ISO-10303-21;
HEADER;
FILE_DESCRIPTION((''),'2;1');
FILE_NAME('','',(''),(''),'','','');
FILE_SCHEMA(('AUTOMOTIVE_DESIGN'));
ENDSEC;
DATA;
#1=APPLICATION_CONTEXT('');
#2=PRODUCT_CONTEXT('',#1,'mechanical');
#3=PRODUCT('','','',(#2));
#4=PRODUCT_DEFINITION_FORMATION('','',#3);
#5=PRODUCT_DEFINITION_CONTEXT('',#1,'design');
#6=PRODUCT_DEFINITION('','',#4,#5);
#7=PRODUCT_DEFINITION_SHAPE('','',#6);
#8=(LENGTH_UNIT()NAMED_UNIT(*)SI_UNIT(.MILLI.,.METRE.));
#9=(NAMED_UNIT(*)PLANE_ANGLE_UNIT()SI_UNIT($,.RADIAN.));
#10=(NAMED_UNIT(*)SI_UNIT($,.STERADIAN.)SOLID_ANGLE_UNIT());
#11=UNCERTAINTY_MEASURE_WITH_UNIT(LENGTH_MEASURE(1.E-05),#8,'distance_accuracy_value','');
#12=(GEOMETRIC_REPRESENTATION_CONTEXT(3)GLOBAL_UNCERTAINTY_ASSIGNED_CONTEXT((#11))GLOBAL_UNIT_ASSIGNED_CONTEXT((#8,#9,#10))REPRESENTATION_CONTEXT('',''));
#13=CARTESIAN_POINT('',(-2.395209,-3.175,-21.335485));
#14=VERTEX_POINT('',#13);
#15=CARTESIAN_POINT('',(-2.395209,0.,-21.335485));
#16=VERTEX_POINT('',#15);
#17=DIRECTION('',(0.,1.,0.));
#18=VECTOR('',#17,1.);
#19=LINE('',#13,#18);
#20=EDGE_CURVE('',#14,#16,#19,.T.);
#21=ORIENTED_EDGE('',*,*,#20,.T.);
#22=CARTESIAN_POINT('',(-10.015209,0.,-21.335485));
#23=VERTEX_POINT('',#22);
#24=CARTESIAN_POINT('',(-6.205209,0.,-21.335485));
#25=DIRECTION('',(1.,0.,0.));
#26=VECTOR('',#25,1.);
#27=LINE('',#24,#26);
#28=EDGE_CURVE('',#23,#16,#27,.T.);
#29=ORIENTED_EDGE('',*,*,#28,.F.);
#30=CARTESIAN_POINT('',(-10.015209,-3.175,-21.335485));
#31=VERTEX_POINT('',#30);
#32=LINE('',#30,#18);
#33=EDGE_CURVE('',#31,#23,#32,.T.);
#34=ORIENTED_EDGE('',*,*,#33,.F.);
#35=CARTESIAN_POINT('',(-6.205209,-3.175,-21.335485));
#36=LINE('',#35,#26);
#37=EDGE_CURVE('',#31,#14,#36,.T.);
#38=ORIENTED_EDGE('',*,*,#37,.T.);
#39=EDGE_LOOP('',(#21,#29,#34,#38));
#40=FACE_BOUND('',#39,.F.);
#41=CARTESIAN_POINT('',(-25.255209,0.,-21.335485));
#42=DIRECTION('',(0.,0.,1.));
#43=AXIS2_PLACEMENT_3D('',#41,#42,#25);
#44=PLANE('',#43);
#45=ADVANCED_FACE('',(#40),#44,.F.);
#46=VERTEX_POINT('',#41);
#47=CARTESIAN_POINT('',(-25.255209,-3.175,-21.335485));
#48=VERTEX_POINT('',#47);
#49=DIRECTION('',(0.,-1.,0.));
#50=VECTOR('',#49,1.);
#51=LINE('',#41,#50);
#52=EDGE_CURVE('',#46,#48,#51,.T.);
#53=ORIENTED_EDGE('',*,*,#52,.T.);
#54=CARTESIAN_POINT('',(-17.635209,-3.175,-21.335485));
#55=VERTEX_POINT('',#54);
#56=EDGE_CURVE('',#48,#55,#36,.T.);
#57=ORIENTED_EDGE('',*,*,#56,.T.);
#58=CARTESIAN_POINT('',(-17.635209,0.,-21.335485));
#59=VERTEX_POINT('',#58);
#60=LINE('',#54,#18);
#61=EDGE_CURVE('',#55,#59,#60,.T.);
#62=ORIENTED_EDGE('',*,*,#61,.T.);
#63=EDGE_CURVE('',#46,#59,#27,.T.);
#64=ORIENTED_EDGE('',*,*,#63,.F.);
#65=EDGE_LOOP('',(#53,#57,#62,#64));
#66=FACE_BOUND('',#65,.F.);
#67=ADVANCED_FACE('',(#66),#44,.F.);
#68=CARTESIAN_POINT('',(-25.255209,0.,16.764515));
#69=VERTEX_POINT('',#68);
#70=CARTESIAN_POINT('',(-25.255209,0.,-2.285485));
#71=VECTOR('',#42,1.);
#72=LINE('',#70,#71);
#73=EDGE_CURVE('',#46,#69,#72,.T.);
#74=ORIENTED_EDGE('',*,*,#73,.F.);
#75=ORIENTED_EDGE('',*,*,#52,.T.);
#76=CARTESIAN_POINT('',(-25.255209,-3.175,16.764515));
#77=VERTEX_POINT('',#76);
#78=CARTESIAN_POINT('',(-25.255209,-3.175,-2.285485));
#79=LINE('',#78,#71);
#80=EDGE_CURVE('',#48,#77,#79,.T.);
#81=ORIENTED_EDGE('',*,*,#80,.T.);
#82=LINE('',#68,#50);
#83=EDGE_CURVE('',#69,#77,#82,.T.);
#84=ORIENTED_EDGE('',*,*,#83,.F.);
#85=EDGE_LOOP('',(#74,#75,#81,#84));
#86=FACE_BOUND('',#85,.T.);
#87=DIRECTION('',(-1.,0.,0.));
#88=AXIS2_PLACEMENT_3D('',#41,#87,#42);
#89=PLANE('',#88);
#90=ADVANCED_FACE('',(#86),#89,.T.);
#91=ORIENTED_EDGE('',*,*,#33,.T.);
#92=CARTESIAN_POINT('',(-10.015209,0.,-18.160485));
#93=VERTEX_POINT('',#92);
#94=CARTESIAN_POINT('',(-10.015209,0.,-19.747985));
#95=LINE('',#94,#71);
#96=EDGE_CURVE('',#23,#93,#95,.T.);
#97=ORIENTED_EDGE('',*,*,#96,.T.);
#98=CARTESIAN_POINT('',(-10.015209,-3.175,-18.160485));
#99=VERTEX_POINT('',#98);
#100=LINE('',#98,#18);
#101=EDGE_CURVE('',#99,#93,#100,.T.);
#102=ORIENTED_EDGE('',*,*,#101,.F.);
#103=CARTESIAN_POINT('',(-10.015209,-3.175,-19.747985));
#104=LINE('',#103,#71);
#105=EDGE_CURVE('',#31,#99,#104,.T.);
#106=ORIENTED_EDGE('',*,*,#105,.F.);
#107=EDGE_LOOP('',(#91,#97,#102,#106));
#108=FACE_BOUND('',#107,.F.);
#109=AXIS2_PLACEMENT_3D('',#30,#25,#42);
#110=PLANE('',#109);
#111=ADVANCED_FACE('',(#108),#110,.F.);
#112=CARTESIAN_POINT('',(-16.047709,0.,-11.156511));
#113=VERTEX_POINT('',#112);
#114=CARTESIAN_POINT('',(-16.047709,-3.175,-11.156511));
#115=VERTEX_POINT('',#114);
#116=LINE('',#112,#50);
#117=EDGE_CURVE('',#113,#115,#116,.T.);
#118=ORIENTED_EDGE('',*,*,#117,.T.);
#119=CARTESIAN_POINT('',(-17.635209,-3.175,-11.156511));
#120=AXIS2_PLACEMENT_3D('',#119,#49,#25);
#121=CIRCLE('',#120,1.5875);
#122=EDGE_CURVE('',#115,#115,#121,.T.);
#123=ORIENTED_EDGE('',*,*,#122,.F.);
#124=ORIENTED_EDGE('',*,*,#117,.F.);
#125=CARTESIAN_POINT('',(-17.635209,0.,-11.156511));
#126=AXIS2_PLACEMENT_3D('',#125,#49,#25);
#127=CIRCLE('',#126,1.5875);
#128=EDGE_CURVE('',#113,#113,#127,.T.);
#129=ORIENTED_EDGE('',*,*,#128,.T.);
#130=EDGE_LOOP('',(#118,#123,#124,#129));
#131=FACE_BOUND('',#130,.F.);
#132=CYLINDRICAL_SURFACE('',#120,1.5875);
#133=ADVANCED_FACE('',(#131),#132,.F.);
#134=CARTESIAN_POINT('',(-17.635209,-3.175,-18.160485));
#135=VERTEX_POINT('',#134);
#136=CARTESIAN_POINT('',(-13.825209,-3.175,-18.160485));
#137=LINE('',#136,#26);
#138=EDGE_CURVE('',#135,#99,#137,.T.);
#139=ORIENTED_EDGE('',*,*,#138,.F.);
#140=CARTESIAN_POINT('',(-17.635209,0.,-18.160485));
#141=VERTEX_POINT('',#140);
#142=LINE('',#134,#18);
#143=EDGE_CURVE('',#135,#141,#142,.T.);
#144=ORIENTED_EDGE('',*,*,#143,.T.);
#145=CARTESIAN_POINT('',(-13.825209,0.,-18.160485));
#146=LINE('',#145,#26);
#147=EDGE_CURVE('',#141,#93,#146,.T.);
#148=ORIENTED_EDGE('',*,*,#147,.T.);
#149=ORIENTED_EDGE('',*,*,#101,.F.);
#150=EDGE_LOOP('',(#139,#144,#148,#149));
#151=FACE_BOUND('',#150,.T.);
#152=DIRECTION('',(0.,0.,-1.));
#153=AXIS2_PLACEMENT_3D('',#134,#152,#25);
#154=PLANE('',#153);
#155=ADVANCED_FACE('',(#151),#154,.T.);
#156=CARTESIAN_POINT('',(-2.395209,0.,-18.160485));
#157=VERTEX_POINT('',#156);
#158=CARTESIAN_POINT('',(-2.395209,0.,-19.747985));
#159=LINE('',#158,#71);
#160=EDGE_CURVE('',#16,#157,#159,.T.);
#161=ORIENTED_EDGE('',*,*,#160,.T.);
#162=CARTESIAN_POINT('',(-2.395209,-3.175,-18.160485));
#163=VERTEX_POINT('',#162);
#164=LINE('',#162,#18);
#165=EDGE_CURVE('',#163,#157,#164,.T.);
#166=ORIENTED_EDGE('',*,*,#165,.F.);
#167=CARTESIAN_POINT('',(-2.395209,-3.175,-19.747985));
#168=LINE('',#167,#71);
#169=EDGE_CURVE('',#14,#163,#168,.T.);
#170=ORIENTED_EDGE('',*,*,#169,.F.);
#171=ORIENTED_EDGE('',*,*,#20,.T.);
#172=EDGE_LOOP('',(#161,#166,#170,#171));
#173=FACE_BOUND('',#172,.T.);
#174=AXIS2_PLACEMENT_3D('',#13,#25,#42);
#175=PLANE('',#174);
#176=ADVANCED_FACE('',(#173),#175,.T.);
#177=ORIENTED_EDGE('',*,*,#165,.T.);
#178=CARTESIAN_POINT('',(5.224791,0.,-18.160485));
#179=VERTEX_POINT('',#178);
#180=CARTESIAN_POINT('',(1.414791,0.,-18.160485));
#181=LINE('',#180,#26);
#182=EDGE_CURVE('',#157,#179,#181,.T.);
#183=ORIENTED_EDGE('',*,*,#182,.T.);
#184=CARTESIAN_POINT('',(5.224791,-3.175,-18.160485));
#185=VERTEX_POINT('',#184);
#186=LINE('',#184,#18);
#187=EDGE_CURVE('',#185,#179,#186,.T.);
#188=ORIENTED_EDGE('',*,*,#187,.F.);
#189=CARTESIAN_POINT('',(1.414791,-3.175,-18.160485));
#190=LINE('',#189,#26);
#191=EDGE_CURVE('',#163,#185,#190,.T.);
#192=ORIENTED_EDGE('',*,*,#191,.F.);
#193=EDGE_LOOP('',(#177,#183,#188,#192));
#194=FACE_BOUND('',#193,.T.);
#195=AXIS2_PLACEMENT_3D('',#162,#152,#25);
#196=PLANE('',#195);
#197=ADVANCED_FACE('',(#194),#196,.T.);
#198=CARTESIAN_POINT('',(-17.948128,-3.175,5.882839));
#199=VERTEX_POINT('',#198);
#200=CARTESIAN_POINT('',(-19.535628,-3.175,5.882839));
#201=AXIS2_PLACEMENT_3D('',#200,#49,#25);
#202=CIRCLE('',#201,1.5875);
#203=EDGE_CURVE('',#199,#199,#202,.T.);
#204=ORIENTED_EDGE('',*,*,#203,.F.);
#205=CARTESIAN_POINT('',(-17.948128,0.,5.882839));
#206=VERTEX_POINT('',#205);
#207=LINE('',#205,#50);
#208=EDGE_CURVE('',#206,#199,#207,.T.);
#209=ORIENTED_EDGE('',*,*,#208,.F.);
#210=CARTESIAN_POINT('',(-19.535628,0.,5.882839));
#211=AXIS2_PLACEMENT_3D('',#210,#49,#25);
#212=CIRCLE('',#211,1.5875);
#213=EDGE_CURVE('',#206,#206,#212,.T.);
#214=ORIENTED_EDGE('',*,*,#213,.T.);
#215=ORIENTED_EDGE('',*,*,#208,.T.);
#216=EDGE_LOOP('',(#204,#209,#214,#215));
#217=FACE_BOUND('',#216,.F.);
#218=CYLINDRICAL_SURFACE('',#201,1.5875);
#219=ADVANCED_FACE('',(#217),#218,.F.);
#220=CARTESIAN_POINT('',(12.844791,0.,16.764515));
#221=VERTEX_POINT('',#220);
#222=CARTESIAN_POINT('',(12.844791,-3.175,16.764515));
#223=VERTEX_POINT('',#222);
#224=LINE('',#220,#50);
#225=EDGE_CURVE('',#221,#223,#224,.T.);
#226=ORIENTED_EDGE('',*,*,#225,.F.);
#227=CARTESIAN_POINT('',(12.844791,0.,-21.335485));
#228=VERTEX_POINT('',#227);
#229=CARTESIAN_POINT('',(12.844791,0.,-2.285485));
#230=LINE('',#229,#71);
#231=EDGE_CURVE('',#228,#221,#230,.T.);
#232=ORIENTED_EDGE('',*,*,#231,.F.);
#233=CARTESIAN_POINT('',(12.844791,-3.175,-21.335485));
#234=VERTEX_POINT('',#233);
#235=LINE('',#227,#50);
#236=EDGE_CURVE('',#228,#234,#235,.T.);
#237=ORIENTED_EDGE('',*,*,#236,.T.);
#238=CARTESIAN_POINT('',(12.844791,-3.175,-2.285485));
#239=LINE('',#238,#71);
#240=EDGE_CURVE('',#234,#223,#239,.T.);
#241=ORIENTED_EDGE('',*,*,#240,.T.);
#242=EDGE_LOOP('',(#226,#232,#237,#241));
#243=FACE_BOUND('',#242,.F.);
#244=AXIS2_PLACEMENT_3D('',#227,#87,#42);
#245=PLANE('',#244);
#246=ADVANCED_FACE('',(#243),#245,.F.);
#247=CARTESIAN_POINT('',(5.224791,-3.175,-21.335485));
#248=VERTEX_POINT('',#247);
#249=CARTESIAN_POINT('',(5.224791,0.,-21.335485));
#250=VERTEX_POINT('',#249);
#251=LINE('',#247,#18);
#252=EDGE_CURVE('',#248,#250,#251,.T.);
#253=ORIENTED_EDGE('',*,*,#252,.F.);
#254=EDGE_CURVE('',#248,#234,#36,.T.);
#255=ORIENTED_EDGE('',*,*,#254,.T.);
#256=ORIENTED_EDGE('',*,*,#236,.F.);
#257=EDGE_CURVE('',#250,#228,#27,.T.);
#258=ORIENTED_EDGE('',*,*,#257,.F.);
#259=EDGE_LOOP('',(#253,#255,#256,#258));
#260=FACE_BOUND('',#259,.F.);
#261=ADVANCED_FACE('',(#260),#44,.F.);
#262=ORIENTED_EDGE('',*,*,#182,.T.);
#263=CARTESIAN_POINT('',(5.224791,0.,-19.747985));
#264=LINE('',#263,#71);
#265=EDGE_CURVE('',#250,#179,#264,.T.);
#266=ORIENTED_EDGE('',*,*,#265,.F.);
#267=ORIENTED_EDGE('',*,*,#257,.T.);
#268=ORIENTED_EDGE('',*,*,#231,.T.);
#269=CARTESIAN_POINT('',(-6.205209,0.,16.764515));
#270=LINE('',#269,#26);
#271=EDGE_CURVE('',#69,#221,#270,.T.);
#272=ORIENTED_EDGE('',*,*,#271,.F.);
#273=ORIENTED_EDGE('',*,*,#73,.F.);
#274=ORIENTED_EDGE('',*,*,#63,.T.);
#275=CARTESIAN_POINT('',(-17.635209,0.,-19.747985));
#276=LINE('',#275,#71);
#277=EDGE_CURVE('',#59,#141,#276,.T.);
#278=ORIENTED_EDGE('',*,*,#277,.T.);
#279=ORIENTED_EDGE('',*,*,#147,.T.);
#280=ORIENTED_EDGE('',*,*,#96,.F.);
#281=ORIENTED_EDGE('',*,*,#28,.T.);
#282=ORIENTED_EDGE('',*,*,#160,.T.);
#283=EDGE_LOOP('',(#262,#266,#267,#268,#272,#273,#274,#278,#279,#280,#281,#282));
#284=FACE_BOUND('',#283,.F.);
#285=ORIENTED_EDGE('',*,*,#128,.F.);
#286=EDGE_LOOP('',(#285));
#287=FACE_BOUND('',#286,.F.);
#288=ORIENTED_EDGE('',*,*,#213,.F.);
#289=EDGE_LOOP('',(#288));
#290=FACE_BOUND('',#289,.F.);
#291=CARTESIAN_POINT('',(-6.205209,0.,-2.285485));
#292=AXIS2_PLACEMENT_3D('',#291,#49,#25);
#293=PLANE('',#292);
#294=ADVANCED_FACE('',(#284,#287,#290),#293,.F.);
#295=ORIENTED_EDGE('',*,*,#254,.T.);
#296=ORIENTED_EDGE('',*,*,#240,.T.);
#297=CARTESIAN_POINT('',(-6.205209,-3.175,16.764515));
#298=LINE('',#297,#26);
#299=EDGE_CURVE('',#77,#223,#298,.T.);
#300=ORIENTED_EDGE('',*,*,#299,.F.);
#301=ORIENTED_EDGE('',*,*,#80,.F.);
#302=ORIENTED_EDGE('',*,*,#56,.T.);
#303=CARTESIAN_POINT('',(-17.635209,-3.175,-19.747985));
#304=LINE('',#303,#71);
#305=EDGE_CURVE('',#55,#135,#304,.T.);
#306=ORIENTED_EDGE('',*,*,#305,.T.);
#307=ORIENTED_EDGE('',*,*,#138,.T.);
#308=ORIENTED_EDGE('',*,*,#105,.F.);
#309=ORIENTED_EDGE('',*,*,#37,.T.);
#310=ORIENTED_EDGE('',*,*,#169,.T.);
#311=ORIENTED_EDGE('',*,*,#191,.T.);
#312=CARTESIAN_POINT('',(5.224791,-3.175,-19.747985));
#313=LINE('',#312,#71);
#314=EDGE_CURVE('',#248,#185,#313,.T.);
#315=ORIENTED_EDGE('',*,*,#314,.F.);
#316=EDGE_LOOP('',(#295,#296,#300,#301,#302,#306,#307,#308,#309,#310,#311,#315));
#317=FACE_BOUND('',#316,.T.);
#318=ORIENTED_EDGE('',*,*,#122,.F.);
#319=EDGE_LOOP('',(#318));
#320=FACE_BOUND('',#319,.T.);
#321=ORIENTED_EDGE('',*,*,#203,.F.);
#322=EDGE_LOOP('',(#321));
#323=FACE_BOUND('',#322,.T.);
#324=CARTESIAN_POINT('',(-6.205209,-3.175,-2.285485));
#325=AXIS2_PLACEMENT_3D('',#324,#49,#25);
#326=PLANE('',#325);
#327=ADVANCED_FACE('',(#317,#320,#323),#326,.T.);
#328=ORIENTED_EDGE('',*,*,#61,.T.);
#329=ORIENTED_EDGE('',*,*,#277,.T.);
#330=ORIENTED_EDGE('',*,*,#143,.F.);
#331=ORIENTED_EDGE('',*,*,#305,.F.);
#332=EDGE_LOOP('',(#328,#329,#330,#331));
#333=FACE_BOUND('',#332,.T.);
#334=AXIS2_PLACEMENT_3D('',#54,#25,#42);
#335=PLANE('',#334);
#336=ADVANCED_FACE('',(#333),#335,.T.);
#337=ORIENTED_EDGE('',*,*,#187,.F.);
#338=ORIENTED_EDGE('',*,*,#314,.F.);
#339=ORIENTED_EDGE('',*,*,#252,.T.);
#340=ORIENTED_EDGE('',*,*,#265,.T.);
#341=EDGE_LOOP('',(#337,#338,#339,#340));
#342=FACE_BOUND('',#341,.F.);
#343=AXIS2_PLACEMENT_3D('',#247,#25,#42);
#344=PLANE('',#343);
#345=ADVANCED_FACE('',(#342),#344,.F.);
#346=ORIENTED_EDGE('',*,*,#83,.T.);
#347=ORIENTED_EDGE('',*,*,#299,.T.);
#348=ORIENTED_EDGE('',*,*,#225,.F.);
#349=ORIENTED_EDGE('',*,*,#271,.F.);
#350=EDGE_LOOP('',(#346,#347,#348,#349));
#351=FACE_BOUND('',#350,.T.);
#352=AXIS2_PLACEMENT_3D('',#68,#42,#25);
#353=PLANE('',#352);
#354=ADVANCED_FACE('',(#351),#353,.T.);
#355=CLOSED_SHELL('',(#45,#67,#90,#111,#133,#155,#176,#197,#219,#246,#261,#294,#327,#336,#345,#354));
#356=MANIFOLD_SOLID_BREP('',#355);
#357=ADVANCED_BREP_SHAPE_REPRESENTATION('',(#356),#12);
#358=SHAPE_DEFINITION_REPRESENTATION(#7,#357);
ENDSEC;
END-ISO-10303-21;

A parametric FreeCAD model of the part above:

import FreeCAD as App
import Part
import Sketcher
from FreeCAD import Vector
Q = App.Units.Quantity


def add_polygon(sketch, points):
    """Adds a closed chain of lines whose ends are joined by coincident constraints."""
    first, n = sketch.GeometryCount, len(points)
    for a, b in zip(points, points[1:] + points[:1]):
        sketch.addGeometry(Part.LineSegment(App.Vector(*a, 0), App.Vector(*b, 0)), False)
    for i in range(n):
        sketch.addConstraint(Sketcher.Constraint("Coincident", first + i, 2, first + (i + 1) % n, 1))

doc = App.newDocument("Part")
body = doc.addObject("PartDesign::Body", "Body")

# Sketch on XZ plane
sketch1 = doc.addObject("Sketcher::SketchObject", "Sketch")
body.addObject(sketch1)
sketch1.AttachmentSupport = (doc.XZ_Plane, [""])
sketch1.MapMode = "FlatFace"
add_polygon(sketch1, [(-25, 17), (-25, -21), (13, -21), (13, 17)])  # lines 0-3
sketch1.addConstraint(Sketcher.Constraint("Vertical", 0))
sketch1.addConstraint(Sketcher.Constraint("Horizontal", 1))
sketch1.addConstraint(Sketcher.Constraint("Vertical", 2))
sketch1.addConstraint(Sketcher.Constraint("Horizontal", 3))
sketch1.addConstraint(Sketcher.Constraint("Equal", 3, 0))
sketch1.addConstraint(Sketcher.Constraint("DistanceX", 1, 1, 1, 2, Q("1.5 in")))
sketch1.addConstraint(Sketcher.Constraint("DistanceX", 0, 2, -1, 1, Q("25.255209 mm")))
sketch1.addConstraint(Sketcher.Constraint("DistanceY", 0, 2, -1, 1, Q("21.335485 mm")))
pad1 = doc.addObject("PartDesign::Pad", "Pad")
body.addObject(pad1)
pad1.Profile = sketch1
pad1.Length = Q("0.125 in")

# Sketch on XZ plane
sketch2 = doc.addObject("Sketcher::SketchObject", "Sketch001")
body.addObject(sketch2)
sketch2.AttachmentSupport = (doc.XZ_Plane, [""])
sketch2.MapMode = "FlatFace"
sketch2.AttachmentOffset = App.Placement(Vector(0, 0, 0.125 * 25.4), App.Rotation())
add_polygon(sketch2, [(-17.6, -18.2), (-17.6, -21.3), (-10, -21.3), (-10, -18.2)])  # lines 0-3
add_polygon(sketch2, [(-2.4, -18.2), (-2.4, -21.3), (5.2, -21.3), (5.2, -18.2)])  # lines 4-7
sketch2.addGeometry(Part.Circle(Vector(-19.5, 5.9, 0), Vector(0, 0, 1), 1.6), False)  # 8
sketch2.addGeometry(Part.Circle(Vector(-17.6, -11.2, 0), Vector(0, 0, 1), 1.6), False)  # 9
sketch2.addConstraint(Sketcher.Constraint("Vertical", 0))
sketch2.addConstraint(Sketcher.Constraint("Horizontal", 1))
sketch2.addConstraint(Sketcher.Constraint("Vertical", 2))
sketch2.addConstraint(Sketcher.Constraint("Horizontal", 3))
sketch2.addConstraint(Sketcher.Constraint("Vertical", 4))
sketch2.addConstraint(Sketcher.Constraint("Horizontal", 5))
sketch2.addConstraint(Sketcher.Constraint("Vertical", 6))
sketch2.addConstraint(Sketcher.Constraint("Horizontal", 7))
sketch2.addConstraint(Sketcher.Constraint("Equal", 8, 9))
sketch2.addConstraint(Sketcher.Constraint("Horizontal", 1, 2, 4, 2))
sketch2.addConstraint(Sketcher.Constraint("Horizontal", 3, 2, 6, 2))
sketch2.addConstraint(Sketcher.Constraint("Vertical", 9, 3, 0, 2))
sketch2.addConstraint(Sketcher.Constraint("Equal", 3, 5))
sketch2.addConstraint(Sketcher.Constraint("Diameter", 8, Q("0.125 in")))
sketch2.addConstraint(Sketcher.Constraint("DistanceX", 1, 1, 1, 2, Q("0.3 in")))
sketch2.addConstraint(Sketcher.Constraint("DistanceX", 1, 2, 4, 2, Q("0.3 in")))
sketch2.addConstraint(Sketcher.Constraint("DistanceY", 0, 2, 0, 1, Q("0.125 in")))
sketch2.addConstraint(Sketcher.Constraint("DistanceY", -1, 1, 8, 3, Q("5.882839 mm")))
sketch2.addConstraint(Sketcher.Constraint("DistanceX", 9, 3, -1, 1, Q("17.635209 mm")))
sketch2.addConstraint(Sketcher.Constraint("DistanceY", 9, 3, -1, 1, Q("11.156511 mm")))
sketch2.addConstraint(Sketcher.Constraint("DistanceX", 8, 3, 9, 3, Q("1.900419 mm")))
sketch2.addConstraint(Sketcher.Constraint("DistanceY", 0, 2, -1, 1, Q("21.335485 mm")))
pocket1 = doc.addObject("PartDesign::Pocket", "Pocket")
body.addObject(pocket1)
pocket1.Profile = sketch2
pocket1.Length = Q("0.125 in")

# Sketch on XZ plane
sketch3 = doc.addObject("Sketcher::SketchObject", "Sketch002")
body.addObject(sketch3)
sketch3.AttachmentSupport = (doc.XZ_Plane, [""])
sketch3.MapMode = "FlatFace"
sketch3.AttachmentOffset = App.Placement(Vector(0, 0, 0.125 * 25.4), App.Rotation())
sketch3.addGeometry(Part.Circle(Vector(-17.6, -11.2, 0), Vector(0, 0, 1), 1.6), False)
sketch3.addGeometry(Part.Circle(Vector(-19.5, 5.9, 0), Vector(0, 0, 1), 1.6), False)
sketch3.addConstraint(Sketcher.Constraint("Equal", 0, 1))
sketch3.addConstraint(Sketcher.Constraint("Diameter", 0, Q("0.125 in")))
sketch3.addConstraint(Sketcher.Constraint("DistanceX", 0, 3, -1, 1, Q("17.635209 mm")))
sketch3.addConstraint(Sketcher.Constraint("DistanceY", 0, 3, -1, 1, Q("11.156511 mm")))
sketch3.addConstraint(Sketcher.Constraint("DistanceY", -1, 1, 1, 3, Q("5.882839 mm")))
sketch3.addConstraint(Sketcher.Constraint("DistanceX", 1, 3, 0, 3, Q("1.900419 mm")))
pocket2 = doc.addObject("PartDesign::Pocket", "Pocket001")
body.addObject(pocket2)
pocket2.Profile = sketch3
pocket2.Length = Q("0.1 in")

doc.recompute()
